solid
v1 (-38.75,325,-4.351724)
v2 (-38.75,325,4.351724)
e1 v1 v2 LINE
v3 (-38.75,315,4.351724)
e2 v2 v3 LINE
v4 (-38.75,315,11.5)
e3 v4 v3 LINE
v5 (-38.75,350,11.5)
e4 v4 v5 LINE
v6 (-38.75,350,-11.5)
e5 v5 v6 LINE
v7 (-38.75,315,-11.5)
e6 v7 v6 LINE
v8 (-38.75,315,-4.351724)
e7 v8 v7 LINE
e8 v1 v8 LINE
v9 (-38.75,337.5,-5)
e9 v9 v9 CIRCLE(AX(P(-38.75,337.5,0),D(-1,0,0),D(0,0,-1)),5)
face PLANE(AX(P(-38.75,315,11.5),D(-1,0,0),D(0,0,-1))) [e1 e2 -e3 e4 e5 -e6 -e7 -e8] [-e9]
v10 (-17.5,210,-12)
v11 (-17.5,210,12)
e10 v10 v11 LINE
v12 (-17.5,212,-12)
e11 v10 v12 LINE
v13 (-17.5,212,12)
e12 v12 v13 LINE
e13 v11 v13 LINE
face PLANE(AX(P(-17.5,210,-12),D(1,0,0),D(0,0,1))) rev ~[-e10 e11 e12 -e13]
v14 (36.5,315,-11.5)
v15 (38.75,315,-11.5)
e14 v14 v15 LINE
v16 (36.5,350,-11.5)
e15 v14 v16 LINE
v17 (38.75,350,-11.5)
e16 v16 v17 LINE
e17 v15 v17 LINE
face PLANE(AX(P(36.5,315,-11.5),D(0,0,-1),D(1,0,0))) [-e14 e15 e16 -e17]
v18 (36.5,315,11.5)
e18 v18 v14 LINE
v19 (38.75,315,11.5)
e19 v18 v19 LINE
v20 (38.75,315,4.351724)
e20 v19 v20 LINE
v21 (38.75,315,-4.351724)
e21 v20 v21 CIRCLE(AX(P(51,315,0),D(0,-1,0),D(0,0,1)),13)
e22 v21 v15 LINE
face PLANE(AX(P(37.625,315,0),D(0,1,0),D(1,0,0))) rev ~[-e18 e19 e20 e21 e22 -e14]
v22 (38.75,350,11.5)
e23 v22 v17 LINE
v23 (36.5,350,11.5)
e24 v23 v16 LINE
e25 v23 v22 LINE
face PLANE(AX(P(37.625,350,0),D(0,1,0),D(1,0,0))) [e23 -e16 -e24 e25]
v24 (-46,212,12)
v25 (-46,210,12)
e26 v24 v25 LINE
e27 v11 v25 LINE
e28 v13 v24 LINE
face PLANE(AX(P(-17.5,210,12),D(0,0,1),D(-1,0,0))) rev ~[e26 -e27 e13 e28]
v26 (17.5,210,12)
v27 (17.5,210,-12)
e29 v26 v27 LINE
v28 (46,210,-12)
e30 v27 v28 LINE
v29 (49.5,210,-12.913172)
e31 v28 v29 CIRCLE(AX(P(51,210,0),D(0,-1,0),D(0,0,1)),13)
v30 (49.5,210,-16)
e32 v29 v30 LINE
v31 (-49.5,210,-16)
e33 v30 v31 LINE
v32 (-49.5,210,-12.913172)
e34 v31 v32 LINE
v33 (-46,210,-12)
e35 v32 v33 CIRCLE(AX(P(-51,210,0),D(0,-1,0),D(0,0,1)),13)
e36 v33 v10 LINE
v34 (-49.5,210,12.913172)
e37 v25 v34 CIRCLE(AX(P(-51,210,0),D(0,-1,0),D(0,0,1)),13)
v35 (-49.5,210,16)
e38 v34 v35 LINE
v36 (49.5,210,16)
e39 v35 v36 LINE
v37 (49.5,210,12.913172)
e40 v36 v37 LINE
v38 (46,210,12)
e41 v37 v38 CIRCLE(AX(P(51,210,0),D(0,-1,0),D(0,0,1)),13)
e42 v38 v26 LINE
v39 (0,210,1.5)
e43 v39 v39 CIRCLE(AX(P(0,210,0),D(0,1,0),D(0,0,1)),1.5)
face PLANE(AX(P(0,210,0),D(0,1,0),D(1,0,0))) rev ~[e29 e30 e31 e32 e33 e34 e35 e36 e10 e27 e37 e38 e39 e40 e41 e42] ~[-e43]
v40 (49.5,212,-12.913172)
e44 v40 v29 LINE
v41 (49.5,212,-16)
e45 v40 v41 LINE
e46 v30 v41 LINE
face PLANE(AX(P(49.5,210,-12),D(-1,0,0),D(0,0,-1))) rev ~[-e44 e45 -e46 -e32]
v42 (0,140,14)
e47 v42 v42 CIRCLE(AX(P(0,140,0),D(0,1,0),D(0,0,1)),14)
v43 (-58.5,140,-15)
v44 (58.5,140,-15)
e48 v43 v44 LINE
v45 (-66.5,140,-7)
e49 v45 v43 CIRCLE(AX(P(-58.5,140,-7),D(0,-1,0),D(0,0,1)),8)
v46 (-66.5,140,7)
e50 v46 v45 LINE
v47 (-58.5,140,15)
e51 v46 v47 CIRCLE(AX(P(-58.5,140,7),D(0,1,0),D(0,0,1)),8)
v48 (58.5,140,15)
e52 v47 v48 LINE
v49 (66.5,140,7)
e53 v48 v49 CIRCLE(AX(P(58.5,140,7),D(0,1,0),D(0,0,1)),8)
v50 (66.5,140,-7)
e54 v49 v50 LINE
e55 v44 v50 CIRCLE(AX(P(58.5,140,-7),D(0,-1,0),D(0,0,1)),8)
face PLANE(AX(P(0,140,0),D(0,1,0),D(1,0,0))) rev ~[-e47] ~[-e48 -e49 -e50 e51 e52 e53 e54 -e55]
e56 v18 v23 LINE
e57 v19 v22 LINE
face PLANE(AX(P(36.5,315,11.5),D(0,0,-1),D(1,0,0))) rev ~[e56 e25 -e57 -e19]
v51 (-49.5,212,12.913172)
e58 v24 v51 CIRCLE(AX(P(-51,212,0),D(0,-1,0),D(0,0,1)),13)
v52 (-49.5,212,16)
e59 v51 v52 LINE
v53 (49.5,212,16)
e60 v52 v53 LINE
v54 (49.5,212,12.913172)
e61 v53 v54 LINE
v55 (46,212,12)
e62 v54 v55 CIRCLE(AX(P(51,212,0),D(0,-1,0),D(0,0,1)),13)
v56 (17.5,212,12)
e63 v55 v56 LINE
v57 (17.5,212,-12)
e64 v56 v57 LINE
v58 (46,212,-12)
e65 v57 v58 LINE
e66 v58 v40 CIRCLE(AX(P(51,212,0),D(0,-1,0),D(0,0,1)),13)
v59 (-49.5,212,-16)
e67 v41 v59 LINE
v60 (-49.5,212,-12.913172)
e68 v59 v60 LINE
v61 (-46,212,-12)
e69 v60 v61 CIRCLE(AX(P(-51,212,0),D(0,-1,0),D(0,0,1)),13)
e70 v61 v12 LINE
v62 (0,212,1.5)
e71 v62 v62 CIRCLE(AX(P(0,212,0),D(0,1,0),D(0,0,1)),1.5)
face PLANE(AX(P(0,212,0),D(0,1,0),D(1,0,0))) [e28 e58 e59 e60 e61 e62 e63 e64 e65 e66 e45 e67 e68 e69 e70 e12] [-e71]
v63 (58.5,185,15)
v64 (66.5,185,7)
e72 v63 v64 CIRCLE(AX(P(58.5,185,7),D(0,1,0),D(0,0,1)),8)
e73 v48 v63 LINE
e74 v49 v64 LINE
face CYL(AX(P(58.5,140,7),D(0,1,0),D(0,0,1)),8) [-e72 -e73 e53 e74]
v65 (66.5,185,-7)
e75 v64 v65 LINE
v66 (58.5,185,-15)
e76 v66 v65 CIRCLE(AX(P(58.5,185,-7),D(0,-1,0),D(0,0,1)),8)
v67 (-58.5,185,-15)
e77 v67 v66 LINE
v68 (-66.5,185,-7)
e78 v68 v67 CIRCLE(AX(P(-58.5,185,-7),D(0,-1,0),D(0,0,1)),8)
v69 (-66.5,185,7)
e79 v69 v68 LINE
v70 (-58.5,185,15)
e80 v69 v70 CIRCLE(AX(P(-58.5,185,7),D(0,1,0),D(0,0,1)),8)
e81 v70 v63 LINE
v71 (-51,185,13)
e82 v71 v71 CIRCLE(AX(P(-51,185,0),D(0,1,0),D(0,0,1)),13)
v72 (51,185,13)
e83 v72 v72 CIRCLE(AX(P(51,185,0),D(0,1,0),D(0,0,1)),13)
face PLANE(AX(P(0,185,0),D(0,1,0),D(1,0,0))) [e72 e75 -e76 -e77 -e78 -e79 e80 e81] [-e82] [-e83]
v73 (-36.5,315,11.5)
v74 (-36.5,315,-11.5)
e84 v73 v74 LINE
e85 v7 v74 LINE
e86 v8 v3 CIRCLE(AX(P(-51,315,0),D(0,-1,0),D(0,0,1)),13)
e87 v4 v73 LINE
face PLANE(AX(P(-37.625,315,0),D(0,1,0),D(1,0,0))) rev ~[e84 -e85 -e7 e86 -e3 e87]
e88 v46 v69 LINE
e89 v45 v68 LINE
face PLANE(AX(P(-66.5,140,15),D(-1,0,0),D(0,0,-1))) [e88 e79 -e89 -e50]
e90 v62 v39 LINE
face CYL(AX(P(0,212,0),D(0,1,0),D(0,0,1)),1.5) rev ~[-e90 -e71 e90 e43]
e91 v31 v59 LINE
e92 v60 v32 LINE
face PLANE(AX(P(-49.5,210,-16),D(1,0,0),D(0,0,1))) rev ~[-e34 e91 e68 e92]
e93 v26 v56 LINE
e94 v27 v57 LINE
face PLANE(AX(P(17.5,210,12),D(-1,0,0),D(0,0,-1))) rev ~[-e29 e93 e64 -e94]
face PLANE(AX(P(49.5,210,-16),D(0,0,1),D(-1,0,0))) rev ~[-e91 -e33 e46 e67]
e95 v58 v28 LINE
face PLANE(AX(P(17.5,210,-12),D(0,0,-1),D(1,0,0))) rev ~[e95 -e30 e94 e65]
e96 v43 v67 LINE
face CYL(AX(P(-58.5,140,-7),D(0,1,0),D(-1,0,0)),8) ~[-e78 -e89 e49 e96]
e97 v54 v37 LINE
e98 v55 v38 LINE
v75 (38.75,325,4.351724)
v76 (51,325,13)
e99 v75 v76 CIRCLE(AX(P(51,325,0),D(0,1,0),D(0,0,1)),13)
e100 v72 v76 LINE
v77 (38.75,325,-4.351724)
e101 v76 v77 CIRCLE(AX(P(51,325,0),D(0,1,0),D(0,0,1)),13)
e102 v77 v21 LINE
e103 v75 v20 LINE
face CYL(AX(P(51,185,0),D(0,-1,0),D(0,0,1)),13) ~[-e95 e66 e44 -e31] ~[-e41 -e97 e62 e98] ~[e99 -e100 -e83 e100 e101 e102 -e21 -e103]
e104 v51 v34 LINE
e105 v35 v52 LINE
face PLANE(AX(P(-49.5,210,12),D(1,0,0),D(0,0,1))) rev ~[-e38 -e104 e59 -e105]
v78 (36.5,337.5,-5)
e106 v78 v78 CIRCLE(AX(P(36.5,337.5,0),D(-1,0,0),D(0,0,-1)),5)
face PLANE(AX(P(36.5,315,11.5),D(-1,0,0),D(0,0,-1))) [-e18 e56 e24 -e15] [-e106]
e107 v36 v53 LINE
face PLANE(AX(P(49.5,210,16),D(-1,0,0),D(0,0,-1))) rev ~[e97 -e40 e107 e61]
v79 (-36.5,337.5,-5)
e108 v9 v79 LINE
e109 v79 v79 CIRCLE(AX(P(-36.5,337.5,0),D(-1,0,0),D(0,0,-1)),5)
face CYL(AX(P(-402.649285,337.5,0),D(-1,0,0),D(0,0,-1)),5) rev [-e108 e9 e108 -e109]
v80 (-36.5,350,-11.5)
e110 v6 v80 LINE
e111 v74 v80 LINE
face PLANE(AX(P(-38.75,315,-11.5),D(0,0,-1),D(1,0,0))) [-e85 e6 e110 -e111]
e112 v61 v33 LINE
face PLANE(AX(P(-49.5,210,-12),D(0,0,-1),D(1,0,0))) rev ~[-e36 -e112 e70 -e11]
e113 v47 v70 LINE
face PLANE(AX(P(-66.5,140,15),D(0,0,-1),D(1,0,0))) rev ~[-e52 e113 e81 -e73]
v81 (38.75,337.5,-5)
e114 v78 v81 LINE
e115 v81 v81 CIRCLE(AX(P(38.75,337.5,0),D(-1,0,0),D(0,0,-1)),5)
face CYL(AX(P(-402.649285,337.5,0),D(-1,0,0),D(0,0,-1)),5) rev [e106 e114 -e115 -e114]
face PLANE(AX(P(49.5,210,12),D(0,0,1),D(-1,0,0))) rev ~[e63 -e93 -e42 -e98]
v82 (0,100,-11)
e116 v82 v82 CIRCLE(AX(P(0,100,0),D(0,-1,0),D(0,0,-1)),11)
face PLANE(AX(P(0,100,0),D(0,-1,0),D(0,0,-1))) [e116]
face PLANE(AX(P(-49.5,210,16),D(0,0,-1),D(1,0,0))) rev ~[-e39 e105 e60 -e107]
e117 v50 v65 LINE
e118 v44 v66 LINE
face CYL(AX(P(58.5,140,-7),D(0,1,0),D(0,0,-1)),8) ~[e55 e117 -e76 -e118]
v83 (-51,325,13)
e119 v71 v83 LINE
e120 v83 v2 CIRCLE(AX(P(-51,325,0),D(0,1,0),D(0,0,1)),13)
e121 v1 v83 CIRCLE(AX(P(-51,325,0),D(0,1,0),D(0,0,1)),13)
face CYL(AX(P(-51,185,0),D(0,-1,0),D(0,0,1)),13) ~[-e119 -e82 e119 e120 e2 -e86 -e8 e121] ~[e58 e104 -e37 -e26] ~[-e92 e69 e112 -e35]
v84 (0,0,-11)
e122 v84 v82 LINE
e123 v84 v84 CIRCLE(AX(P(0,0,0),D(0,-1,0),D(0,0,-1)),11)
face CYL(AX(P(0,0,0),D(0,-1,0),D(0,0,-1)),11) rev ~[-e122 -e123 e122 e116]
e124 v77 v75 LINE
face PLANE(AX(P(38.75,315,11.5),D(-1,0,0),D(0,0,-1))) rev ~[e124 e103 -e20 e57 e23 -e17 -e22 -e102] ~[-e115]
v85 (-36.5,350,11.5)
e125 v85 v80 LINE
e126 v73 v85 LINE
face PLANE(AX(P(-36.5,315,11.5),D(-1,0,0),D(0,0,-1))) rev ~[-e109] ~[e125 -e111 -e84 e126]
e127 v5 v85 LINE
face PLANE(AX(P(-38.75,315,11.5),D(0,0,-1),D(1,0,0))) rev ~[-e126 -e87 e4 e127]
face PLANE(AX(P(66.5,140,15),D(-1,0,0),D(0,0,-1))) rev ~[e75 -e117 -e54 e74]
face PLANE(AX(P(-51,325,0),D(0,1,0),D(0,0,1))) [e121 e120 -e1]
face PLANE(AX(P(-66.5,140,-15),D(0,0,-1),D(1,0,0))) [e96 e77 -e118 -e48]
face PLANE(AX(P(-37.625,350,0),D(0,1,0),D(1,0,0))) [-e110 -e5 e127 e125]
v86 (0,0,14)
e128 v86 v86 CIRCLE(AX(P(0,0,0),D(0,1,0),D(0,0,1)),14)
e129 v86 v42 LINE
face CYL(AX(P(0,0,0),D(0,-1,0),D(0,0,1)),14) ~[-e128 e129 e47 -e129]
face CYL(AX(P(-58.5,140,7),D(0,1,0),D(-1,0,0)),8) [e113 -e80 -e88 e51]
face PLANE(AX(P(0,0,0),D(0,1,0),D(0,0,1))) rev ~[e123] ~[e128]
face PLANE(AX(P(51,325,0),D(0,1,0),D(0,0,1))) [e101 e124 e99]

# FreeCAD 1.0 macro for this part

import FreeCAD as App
import Part
import Sketcher
from FreeCAD import Vector


def edges_at(feature, points):
    """Names of the edges that pass closest to the given points."""
    edges = feature.Shape.Edges
    near = lambda p: min(range(len(edges)), key=lambda i: edges[i].distToShape(Part.Vertex(*p))[0])
    return sorted({f"Edge{near(p) + 1}" for p in points})


def add_polygon(sketch, points):
    """Adds a closed chain of lines whose ends are joined by coincident constraints."""
    first, n = sketch.GeometryCount, len(points)
    for a, b in zip(points, points[1:] + points[:1]):
        sketch.addGeometry(Part.LineSegment(App.Vector(*a, 0), App.Vector(*b, 0)), False)
    for i in range(n):
        sketch.addConstraint(Sketcher.Constraint("Coincident", first + i, 2, first + (i + 1) % n, 1))

doc = App.newDocument("Part")
body = doc.addObject("PartDesign::Body", "Body")

# Sketch on XZ plane
sketch1 = body.newObject("Sketcher::SketchObject", "Sketch")
sketch1.AttachmentSupport = (doc.getObject("XZ_Plane"), [""])
sketch1.MapMode = "FlatFace"
sketch1.addGeometry(Part.Circle(Vector(0, 0, 0), Vector(0, 0, 1), 14), False)
sketch1.addConstraint([
    Sketcher.Constraint("Coincident", 0, 3, -1, 1),
    Sketcher.Constraint("Diameter", 0, 28.0),
])
pad1 = body.newObject("PartDesign::Pad", "Pad")
pad1.Profile = sketch1
pad1.Length = 140
pad1.Reversed = True

# Sketch on XZ plane
sketch2 = body.newObject("Sketcher::SketchObject", "Sketch001")
sketch2.AttachmentSupport = (doc.getObject("XZ_Plane"), [""])
sketch2.MapMode = "FlatFace"
sketch2.AttachmentOffset = App.Placement(Vector(0, 0, -140), App.Rotation())
add_polygon(sketch2, [(-66.5, -15), (-66.5, 15), (66.5, 15), (66.5, -15)])  # lines 0-3
sketch2.addConstraint([
    Sketcher.Constraint("Vertical", 0),
    Sketcher.Constraint("Horizontal", 1),
    Sketcher.Constraint("Vertical", 2),
    Sketcher.Constraint("Horizontal", 3),
    Sketcher.Constraint("Symmetric", 0, 2, 2, 2, -1, 1),
    Sketcher.Constraint("DistanceX", 1, 1, 1, 2, 133.0),
    Sketcher.Constraint("DistanceY", 0, 1, 0, 2, 30.0),
])
pad2 = body.newObject("PartDesign::Pad", "Pad001")
pad2.Profile = sketch2
pad2.Length = 45
pad2.Reversed = True

# Sketch on XZ plane
sketch3 = body.newObject("Sketcher::SketchObject", "Sketch002")
sketch3.AttachmentSupport = (doc.getObject("XZ_Plane"), [""])
sketch3.MapMode = "FlatFace"
sketch3.AttachmentOffset = App.Placement(Vector(0, 0, -185), App.Rotation())
sketch3.addGeometry([
    Part.Circle(Vector(-51, 0, 0), Vector(0, 0, 1), 13),
    Part.Circle(Vector(51, 0, 0), Vector(0, 0, 1), 13),
], False)
sketch3.addConstraint([
    Sketcher.Constraint("Equal", 0, 1),
    Sketcher.Constraint("Symmetric", 0, 3, 1, 3, -1, 1),
    Sketcher.Constraint("PointOnObject", 0, 3, -1),
    Sketcher.Constraint("Diameter", 0, 26.0),
    Sketcher.Constraint("DistanceX", 0, 3, -1, 1, 51.0),
])
pad3 = body.newObject("PartDesign::Pad", "Pad002")
pad3.Profile = sketch3
pad3.Length = 140
pad3.Reversed = True
doc.recompute()

fillet = body.newObject("PartDesign::Fillet", "Fillet")
fillet.Base = (pad3, edges_at(pad3, [
    (-66.5, 162.5, 15),
    (66.5, 162.5, 15),
    (66.5, 162.5, -15),
    (-66.5, 162.5, -15),
]))
fillet.Radius = 8

# Sketch on XZ plane
sketch4 = body.newObject("Sketcher::SketchObject", "Sketch003")
sketch4.AttachmentSupport = (doc.getObject("XZ_Plane"), [""])
sketch4.MapMode = "FlatFace"
sketch4.AttachmentOffset = App.Placement(Vector(0, 0, -315), App.Rotation())
add_polygon(sketch4, [(-38.75, -11.5), (-38.75, 11.5), (-36.5, 11.5), (-36.5, -11.5)])  # lines 0-3
add_polygon(sketch4, [(36.5, -11.5), (36.5, 11.5), (38.75, 11.5), (38.75, -11.5)])  # lines 4-7
sketch4.addConstraint([
    Sketcher.Constraint("Vertical", 0),
    Sketcher.Constraint("Horizontal", 1),
    Sketcher.Constraint("Vertical", 2),
    Sketcher.Constraint("Horizontal", 3),
    Sketcher.Constraint("Vertical", 4),
    Sketcher.Constraint("Horizontal", 5),
    Sketcher.Constraint("Vertical", 6),
    Sketcher.Constraint("Horizontal", 7),
    Sketcher.Constraint("Symmetric", 2, 2, 4, 2, -1, 1),
    Sketcher.Constraint("Symmetric", 0, 2, 6, 2, -1, 1),
    Sketcher.Constraint("Horizontal", 1, 2, 4, 2),
    Sketcher.Constraint("DistanceY", 0, 1, 0, 2, 23.0),
    Sketcher.Constraint("DistanceX", 1, 2, 4, 2, 73.0),
    Sketcher.Constraint("DistanceX", 1, 1, 1, 2, 2.25),
])
pad4 = body.newObject("PartDesign::Pad", "Pad003")
pad4.Profile = sketch4
pad4.Length = 35
pad4.Reversed = True

# Sketch on YZ plane
sketch5 = body.newObject("Sketcher::SketchObject", "Sketch004")
sketch5.AttachmentSupport = (doc.getObject("YZ_Plane"), [""])
sketch5.MapMode = "FlatFace"
sketch5.AttachmentOffset = App.Placement(Vector(0, 0, -36.5), App.Rotation())
sketch5.addGeometry(Part.Circle(Vector(337.5, 0, 0), Vector(0, 0, 1), 5), False)
sketch5.addConstraint([
    Sketcher.Constraint("PointOnObject", 0, 3, -1),
    Sketcher.Constraint("Diameter", 0, 10.0),
    Sketcher.Constraint("DistanceX", -1, 1, 0, 3, 337.5),
])
pocket1 = body.newObject("PartDesign::Pocket", "Pocket")
pocket1.Profile = sketch5
pocket1.Type = "ThroughAll"
pocket1.Midplane = True

# Sketch on XZ plane
sketch6 = body.newObject("Sketcher::SketchObject", "Sketch005")
sketch6.AttachmentSupport = (doc.getObject("XZ_Plane"), [""])
sketch6.MapMode = "FlatFace"
sketch6.AttachmentOffset = App.Placement(Vector(0, 0, -210), App.Rotation())
add_polygon(sketch6, [(-49.5, -16), (-49.5, -12), (-17.5, -12), (-17.5, 12), (-49.5, 12), (-49.5, 16), (49.5, 16), (49.5, 12), (17.5, 12), (17.5, -12), (49.5, -12), (49.5, -16)])  # lines 0-11
sketch6.addConstraint([
    Sketcher.Constraint("Vertical", 0),
    Sketcher.Constraint("Horizontal", 1),
    Sketcher.Constraint("Vertical", 2),
    Sketcher.Constraint("Horizontal", 3),
    Sketcher.Constraint("Vertical", 4),
    Sketcher.Constraint("Horizontal", 5),
    Sketcher.Constraint("Vertical", 6),
    Sketcher.Constraint("Horizontal", 7),
    Sketcher.Constraint("Vertical", 8),
    Sketcher.Constraint("Horizontal", 9),
    Sketcher.Constraint("Vertical", 10),
    Sketcher.Constraint("Horizontal", 11),
    Sketcher.Constraint("Symmetric", 0, 2, 6, 2, -1, 1),
    Sketcher.Constraint("Symmetric", 2, 2, 8, 2, -1, 1),
    Sketcher.Constraint("Symmetric", 4, 2, 10, 2, -1, 1),
    Sketcher.Constraint("Symmetric", 3, 2, 6, 2, -2),
    Sketcher.Constraint("DistanceX", 1, 1, 1, 2, 32.0),
    Sketcher.Constraint("DistanceX", 5, 1, 5, 2, 99.0),
    Sketcher.Constraint("DistanceY", 0, 1, 0, 2, 4.0),
    Sketcher.Constraint("DistanceY", 2, 1, 2, 2, 24.0),
])
pad5 = body.newObject("PartDesign::Pad", "Pad004")
pad5.Profile = sketch6
pad5.Length = 2
pad5.Reversed = True

# Sketch on XZ plane
sketch7 = body.newObject("Sketcher::SketchObject", "Sketch006")
sketch7.AttachmentSupport = (doc.getObject("XZ_Plane"), [""])
sketch7.MapMode = "FlatFace"
sketch7.AttachmentOffset = App.Placement(Vector(0, 0, -212), App.Rotation())
sketch7.addGeometry(Part.Circle(Vector(0, 0, 0), Vector(0, 0, 1), 1.5), False)
sketch7.addConstraint([
    Sketcher.Constraint("Coincident", 0, 3, -1, 1),
    Sketcher.Constraint("Diameter", 0, 3.0),
])
pocket2 = body.newObject("PartDesign::Pocket", "Pocket001")
pocket2.Profile = sketch7
pocket2.Type = "UpToFirst"
pocket2.Reversed = True

# Sketch on XZ plane
sketch8 = body.newObject("Sketcher::SketchObject", "Sketch007")
sketch8.AttachmentSupport = (doc.getObject("XZ_Plane"), [""])
sketch8.MapMode = "FlatFace"
sketch8.addGeometry(Part.Circle(Vector(0, 0, 0), Vector(0, 0, 1), 11), False)
sketch8.addConstraint([
    Sketcher.Constraint("Coincident", 0, 3, -1, 1),
    Sketcher.Constraint("Diameter", 0, 22.0),
])
pocket3 = body.newObject("PartDesign::Pocket", "Pocket002")
pocket3.Profile = sketch8
pocket3.Length = 100

doc.recompute()
